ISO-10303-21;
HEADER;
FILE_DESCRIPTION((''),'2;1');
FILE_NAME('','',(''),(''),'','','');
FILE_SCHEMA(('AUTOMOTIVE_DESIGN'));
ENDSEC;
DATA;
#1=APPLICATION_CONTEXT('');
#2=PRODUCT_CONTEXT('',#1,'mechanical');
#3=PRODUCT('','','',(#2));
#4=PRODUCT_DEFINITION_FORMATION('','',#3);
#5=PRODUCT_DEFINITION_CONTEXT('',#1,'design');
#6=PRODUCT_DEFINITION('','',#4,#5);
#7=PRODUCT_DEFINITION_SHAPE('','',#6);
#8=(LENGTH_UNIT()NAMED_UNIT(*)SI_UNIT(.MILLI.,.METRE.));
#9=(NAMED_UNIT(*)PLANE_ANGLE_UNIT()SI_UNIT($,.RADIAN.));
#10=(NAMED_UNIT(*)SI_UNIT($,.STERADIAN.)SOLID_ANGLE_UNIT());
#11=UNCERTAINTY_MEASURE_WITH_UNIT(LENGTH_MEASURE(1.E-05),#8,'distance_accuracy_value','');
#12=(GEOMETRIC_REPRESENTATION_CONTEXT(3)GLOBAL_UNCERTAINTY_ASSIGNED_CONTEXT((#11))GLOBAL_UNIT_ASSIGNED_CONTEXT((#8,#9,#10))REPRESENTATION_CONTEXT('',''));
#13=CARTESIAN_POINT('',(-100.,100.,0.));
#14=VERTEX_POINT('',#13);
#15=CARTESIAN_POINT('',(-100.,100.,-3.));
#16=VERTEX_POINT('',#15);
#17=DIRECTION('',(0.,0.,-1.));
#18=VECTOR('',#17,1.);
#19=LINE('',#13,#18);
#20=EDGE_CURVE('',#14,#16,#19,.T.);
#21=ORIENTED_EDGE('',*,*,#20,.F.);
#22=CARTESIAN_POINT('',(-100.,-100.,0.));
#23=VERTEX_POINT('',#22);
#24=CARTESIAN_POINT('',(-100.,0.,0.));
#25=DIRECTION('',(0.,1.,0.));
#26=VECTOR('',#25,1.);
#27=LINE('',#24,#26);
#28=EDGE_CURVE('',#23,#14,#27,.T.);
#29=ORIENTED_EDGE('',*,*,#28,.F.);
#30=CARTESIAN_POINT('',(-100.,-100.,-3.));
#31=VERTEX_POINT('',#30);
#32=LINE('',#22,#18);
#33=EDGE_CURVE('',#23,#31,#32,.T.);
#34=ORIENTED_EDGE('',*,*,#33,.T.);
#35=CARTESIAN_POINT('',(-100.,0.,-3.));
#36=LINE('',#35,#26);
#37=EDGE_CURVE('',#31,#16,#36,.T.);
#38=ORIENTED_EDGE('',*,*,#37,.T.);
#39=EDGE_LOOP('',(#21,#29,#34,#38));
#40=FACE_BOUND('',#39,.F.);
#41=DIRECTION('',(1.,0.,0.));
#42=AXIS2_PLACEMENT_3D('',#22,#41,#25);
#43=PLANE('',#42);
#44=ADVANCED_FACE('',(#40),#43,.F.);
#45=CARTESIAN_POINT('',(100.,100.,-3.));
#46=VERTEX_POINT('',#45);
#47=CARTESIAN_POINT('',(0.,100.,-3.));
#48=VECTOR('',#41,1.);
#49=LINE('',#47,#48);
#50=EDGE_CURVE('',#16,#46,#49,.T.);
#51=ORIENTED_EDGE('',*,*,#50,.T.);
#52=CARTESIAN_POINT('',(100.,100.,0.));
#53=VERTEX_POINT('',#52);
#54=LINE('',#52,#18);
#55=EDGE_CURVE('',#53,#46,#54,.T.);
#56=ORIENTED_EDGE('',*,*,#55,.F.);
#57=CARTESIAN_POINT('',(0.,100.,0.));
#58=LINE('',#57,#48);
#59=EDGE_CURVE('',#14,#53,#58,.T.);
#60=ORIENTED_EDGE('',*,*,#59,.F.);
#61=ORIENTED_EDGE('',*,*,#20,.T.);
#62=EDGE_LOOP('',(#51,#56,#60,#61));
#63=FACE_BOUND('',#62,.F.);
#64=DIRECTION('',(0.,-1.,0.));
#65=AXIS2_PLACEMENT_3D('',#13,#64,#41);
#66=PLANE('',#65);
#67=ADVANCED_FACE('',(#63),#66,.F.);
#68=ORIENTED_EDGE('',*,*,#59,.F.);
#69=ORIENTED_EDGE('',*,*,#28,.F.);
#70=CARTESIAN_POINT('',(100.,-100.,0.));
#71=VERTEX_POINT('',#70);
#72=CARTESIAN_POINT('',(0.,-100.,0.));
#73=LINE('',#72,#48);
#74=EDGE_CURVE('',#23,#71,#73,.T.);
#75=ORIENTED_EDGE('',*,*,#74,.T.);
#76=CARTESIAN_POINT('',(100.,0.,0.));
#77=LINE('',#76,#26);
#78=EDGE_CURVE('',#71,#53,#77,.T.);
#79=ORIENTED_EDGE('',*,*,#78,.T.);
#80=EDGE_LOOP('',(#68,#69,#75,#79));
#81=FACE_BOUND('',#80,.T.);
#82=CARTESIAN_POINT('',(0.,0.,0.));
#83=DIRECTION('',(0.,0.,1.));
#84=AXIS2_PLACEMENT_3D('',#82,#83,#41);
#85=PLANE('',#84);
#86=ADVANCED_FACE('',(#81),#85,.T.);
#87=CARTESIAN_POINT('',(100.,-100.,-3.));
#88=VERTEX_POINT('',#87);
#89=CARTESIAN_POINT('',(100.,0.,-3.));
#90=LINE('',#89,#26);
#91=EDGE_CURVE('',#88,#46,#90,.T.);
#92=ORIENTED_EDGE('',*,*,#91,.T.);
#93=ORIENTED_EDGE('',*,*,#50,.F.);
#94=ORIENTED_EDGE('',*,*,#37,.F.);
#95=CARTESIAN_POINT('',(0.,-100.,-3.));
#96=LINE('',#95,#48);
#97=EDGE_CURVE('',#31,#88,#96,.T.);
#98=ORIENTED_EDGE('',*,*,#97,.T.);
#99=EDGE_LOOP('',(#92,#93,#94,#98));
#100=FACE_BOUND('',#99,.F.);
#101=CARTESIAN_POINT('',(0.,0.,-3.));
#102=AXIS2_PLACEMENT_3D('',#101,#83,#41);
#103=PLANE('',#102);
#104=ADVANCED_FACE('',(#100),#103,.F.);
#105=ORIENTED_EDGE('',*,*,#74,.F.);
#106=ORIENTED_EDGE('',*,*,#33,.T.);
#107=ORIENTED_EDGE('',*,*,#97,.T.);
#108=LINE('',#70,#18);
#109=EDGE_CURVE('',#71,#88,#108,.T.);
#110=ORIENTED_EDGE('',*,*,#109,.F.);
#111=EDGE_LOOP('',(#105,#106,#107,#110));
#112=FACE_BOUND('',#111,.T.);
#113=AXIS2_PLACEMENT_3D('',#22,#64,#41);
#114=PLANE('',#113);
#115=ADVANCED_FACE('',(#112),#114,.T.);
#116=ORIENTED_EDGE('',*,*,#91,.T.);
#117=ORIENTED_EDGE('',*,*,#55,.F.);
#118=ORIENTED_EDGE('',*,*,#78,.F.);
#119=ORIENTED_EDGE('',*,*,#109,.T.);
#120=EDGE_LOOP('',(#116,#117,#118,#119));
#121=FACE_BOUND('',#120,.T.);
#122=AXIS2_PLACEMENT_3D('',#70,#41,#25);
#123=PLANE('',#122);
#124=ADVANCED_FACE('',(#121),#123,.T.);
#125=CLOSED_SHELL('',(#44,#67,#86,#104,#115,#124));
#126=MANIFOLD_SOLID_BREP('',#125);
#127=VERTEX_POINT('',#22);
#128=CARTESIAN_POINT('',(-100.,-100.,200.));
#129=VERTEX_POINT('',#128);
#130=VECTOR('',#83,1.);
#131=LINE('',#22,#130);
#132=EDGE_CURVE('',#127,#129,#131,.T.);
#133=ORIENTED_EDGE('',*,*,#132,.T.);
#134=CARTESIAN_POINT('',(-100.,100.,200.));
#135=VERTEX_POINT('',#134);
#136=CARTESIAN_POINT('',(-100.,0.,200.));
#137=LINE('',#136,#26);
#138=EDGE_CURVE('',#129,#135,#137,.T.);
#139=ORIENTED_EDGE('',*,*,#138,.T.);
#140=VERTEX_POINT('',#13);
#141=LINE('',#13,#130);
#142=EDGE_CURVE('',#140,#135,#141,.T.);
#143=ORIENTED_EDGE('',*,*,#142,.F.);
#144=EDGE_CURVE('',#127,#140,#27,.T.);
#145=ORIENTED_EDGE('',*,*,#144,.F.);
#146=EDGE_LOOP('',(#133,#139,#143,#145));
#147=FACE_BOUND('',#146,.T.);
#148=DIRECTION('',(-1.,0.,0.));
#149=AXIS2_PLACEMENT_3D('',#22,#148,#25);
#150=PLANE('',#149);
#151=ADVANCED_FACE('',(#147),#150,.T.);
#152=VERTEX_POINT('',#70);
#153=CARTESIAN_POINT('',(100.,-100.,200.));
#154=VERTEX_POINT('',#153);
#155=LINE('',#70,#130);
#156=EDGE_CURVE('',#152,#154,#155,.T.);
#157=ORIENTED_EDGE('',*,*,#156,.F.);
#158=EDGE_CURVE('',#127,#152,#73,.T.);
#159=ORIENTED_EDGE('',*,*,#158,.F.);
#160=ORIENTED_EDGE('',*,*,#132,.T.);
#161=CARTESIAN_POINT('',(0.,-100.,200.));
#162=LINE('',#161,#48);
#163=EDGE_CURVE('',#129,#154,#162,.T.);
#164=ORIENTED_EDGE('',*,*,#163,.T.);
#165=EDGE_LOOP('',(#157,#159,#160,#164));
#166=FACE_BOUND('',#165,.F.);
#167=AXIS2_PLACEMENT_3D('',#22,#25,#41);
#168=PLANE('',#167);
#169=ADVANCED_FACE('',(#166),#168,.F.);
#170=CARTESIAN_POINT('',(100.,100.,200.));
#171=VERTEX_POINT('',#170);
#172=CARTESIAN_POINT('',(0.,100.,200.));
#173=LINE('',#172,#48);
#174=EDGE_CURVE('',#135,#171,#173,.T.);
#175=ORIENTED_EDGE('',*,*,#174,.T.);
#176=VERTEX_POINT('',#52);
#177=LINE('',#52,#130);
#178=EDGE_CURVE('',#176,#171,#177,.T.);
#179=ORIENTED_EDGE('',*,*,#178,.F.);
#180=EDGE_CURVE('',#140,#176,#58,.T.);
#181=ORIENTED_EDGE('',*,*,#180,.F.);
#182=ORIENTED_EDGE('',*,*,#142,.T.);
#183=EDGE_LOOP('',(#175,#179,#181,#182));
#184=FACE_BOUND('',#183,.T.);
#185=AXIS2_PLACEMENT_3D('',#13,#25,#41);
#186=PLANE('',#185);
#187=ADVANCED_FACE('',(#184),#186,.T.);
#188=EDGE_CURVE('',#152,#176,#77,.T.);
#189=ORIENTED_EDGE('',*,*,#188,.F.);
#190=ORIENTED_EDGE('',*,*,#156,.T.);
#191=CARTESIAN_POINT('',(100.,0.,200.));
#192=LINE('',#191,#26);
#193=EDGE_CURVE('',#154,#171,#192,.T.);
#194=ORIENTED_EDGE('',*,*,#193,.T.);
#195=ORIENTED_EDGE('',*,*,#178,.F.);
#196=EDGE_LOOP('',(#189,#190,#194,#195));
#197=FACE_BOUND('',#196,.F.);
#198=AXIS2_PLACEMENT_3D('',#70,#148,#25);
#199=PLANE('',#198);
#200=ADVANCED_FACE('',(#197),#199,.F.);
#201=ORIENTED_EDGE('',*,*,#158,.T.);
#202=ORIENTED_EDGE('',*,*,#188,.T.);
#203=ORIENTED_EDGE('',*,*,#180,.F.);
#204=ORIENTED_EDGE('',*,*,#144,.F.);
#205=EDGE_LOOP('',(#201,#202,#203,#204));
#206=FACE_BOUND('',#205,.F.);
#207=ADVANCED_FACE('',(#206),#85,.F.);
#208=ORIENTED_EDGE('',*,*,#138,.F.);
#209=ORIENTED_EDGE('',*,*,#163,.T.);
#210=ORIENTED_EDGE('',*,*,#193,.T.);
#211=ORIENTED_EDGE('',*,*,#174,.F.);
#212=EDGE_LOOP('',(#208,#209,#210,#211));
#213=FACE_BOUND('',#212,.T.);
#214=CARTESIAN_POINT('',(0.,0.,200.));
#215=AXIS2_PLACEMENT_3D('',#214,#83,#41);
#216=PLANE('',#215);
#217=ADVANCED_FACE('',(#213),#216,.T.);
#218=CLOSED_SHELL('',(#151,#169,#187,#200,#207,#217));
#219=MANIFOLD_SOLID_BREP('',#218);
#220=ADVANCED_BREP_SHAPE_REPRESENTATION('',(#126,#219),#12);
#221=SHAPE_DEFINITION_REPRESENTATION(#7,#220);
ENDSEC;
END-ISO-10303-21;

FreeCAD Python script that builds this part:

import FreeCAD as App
import Part
import Sketcher

V = App.Vector

doc = App.newDocument("Part")
params = doc.addObject("Spreadsheet::Sheet", "Params")
for row, (alias, value) in enumerate([
    ("sketch1_width", "200 mm"),
    ("pad1_length", "3 mm"),
    ("sketch2_width", "200 mm"),
    ("pad2_length", "200 mm"),
], start=1):
    params.set(f"A{row}", alias)
    params.set(f"B{row}", "=" + value)
    params.setAlias(f"B{row}", alias)

body = doc.addObject("PartDesign::Body", "Body")

# Sketch on XY plane
sketch1 = body.newObject("Sketcher::SketchObject", "Sketch")
sketch1.AttachmentSupport = (doc.getObject("XY_Plane"), [""])
sketch1.MapMode = "FlatFace"
sketch1.addGeometry([
    Part.LineSegment(V(-100, 100, 0), V(-100, -100, 0)),
    Part.LineSegment(V(-100, -100, 0), V(100, -100, 0)),
    Part.LineSegment(V(100, -100, 0), V(100, 100, 0)),
    Part.LineSegment(V(100, 100, 0), V(-100, 100, 0)),
], False)
sketch1.addConstraint([
    Sketcher.Constraint("Coincident", 0, 2, 1, 1),
    Sketcher.Constraint("Coincident", 1, 2, 2, 1),
    Sketcher.Constraint("Coincident", 2, 2, 3, 1),
    Sketcher.Constraint("Coincident", 3, 2, 0, 1),
    Sketcher.Constraint("Vertical", 0),
    Sketcher.Constraint("Horizontal", 1),
    Sketcher.Constraint("Vertical", 2),
    Sketcher.Constraint("Horizontal", 3),
    Sketcher.Constraint("Symmetric", 0, 2, 2, 2, -1, 1),
    Sketcher.Constraint("Equal", 3, 0),
    Sketcher.Constraint("DistanceX", 1, 1, 1, 2, 200.0),
])
sketch1.setExpression("Constraints[10]", "Params.sketch1_width")
pad1 = body.newObject("PartDesign::Pad", "Pad")
pad1.Profile = sketch1
pad1.setExpression("Length", "Params.pad1_length")
pad1.Reversed = True
body2 = doc.addObject("PartDesign::Body", "Body001")

# Sketch on XY plane
sketch2 = body2.newObject("Sketcher::SketchObject", "Sketch001")
sketch2.AttachmentSupport = (doc.getObject("XY_Plane001"), [""])
sketch2.MapMode = "FlatFace"
sketch2.addGeometry([
    Part.LineSegment(V(-100, 100, 0), V(-100, -100, 0)),
    Part.LineSegment(V(-100, -100, 0), V(100, -100, 0)),
    Part.LineSegment(V(100, -100, 0), V(100, 100, 0)),
    Part.LineSegment(V(100, 100, 0), V(-100, 100, 0)),
], False)
sketch2.addConstraint([
    Sketcher.Constraint("Coincident", 0, 2, 1, 1),
    Sketcher.Constraint("Coincident", 1, 2, 2, 1),
    Sketcher.Constraint("Coincident", 2, 2, 3, 1),
    Sketcher.Constraint("Coincident", 3, 2, 0, 1),
    Sketcher.Constraint("Vertical", 0),
    Sketcher.Constraint("Horizontal", 1),
    Sketcher.Constraint("Vertical", 2),
    Sketcher.Constraint("Horizontal", 3),
    Sketcher.Constraint("Symmetric", 0, 2, 2, 2, -1, 1),
    Sketcher.Constraint("Equal", 3, 0),
    Sketcher.Constraint("DistanceX", 1, 1, 1, 2, 200.0),
])
sketch2.setExpression("Constraints[10]", "Params.sketch2_width")
pad2 = body2.newObject("PartDesign::Pad", "Pad001")
pad2.Profile = sketch2
pad2.setExpression("Length", "Params.pad2_length")

doc.recompute()
